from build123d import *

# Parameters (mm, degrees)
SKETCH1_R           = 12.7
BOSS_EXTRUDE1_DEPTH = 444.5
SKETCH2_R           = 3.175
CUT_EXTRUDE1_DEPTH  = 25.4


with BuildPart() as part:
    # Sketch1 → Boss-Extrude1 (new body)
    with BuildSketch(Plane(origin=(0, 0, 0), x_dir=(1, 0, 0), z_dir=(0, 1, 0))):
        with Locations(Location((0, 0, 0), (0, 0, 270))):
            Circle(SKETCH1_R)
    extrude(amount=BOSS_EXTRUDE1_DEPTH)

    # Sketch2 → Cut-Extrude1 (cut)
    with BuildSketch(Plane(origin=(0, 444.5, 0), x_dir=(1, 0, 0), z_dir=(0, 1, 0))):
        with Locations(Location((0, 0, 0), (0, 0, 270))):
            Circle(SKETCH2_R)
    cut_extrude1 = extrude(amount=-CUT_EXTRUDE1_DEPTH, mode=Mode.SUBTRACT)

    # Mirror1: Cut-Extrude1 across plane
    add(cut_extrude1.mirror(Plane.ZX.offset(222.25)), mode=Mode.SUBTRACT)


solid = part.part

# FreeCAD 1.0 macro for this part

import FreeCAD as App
import Part
import Sketcher
from FreeCAD import Vector
Q = App.Units.Quantity

doc = App.newDocument("Part")
params = doc.addObject("Spreadsheet::Sheet", "Params")
for row, (alias, value) in enumerate([
    ("sketch1_diameter", "1 in"),
    ("pad1_length", "17.5 in"),
    ("sketch2_diameter", "0.25 in"),
    ("pocket1_length", "1 in"),
], start=1):
    params.set(f"A{row}", alias)
    params.set(f"B{row}", "=" + value)
    params.setAlias(f"B{row}", alias)

body = doc.addObject("PartDesign::Body", "Body")

# Sketch on XZ plane
sketch1 = body.newObject("Sketcher::SketchObject", "Sketch")
sketch1.AttachmentSupport = (doc.getObject("XZ_Plane"), [""])
sketch1.MapMode = "FlatFace"
sketch1.addGeometry(Part.Circle(Vector(0, 0, 0), Vector(0, 0, 1), 12.7), False)
sketch1.addConstraint([
    Sketcher.Constraint("Coincident", 0, 3, -1, 1),
    Sketcher.Constraint("Diameter", 0, Q("1 in")),
])
sketch1.setExpression("Constraints[1]", "Params.sketch1_diameter")
pad1 = body.newObject("PartDesign::Pad", "Pad")
pad1.Profile = sketch1
pad1.setExpression("Length", "Params.pad1_length")
pad1.Reversed = True

# Sketch on XZ plane
sketch2 = body.newObject("Sketcher::SketchObject", "Sketch001")
sketch2.AttachmentSupport = (doc.getObject("XZ_Plane"), [""])
sketch2.MapMode = "FlatFace"
sketch2.AttachmentOffset = App.Placement(Vector(0, 0, -17.5 * 25.4), App.Rotation())
sketch2.addGeometry(Part.Circle(Vector(0, 0, 0), Vector(0, 0, 1), 3.175), False)
sketch2.addConstraint([
    Sketcher.Constraint("Coincident", 0, 3, -1, 1),
    Sketcher.Constraint("Diameter", 0, Q("0.25 in")),
])
sketch2.setExpression("Constraints[1]", "Params.sketch2_diameter")
pocket1 = body.newObject("PartDesign::Pocket", "Pocket")
pocket1.Profile = sketch2
pocket1.setExpression("Length", "Params.pocket1_length")
pocket1.Reversed = True
doc.recompute()

datumplane = body.newObject("PartDesign::Plane", "DatumPlane")
datumplane.AttachmentSupport = (doc.getObject("XZ_Plane"), [""])
datumplane.MapMode = "FlatFace"
datumplane.AttachmentOffset = App.Placement(Vector(0, 0, -8.75 * 25.4), App.Rotation())
mirrored = body.newObject("PartDesign::Mirrored", "Mirrored")
mirrored.Originals = [pocket1]
mirrored.MirrorPlane = (datumplane, [""])
body.Tip = mirrored

doc.recompute()
